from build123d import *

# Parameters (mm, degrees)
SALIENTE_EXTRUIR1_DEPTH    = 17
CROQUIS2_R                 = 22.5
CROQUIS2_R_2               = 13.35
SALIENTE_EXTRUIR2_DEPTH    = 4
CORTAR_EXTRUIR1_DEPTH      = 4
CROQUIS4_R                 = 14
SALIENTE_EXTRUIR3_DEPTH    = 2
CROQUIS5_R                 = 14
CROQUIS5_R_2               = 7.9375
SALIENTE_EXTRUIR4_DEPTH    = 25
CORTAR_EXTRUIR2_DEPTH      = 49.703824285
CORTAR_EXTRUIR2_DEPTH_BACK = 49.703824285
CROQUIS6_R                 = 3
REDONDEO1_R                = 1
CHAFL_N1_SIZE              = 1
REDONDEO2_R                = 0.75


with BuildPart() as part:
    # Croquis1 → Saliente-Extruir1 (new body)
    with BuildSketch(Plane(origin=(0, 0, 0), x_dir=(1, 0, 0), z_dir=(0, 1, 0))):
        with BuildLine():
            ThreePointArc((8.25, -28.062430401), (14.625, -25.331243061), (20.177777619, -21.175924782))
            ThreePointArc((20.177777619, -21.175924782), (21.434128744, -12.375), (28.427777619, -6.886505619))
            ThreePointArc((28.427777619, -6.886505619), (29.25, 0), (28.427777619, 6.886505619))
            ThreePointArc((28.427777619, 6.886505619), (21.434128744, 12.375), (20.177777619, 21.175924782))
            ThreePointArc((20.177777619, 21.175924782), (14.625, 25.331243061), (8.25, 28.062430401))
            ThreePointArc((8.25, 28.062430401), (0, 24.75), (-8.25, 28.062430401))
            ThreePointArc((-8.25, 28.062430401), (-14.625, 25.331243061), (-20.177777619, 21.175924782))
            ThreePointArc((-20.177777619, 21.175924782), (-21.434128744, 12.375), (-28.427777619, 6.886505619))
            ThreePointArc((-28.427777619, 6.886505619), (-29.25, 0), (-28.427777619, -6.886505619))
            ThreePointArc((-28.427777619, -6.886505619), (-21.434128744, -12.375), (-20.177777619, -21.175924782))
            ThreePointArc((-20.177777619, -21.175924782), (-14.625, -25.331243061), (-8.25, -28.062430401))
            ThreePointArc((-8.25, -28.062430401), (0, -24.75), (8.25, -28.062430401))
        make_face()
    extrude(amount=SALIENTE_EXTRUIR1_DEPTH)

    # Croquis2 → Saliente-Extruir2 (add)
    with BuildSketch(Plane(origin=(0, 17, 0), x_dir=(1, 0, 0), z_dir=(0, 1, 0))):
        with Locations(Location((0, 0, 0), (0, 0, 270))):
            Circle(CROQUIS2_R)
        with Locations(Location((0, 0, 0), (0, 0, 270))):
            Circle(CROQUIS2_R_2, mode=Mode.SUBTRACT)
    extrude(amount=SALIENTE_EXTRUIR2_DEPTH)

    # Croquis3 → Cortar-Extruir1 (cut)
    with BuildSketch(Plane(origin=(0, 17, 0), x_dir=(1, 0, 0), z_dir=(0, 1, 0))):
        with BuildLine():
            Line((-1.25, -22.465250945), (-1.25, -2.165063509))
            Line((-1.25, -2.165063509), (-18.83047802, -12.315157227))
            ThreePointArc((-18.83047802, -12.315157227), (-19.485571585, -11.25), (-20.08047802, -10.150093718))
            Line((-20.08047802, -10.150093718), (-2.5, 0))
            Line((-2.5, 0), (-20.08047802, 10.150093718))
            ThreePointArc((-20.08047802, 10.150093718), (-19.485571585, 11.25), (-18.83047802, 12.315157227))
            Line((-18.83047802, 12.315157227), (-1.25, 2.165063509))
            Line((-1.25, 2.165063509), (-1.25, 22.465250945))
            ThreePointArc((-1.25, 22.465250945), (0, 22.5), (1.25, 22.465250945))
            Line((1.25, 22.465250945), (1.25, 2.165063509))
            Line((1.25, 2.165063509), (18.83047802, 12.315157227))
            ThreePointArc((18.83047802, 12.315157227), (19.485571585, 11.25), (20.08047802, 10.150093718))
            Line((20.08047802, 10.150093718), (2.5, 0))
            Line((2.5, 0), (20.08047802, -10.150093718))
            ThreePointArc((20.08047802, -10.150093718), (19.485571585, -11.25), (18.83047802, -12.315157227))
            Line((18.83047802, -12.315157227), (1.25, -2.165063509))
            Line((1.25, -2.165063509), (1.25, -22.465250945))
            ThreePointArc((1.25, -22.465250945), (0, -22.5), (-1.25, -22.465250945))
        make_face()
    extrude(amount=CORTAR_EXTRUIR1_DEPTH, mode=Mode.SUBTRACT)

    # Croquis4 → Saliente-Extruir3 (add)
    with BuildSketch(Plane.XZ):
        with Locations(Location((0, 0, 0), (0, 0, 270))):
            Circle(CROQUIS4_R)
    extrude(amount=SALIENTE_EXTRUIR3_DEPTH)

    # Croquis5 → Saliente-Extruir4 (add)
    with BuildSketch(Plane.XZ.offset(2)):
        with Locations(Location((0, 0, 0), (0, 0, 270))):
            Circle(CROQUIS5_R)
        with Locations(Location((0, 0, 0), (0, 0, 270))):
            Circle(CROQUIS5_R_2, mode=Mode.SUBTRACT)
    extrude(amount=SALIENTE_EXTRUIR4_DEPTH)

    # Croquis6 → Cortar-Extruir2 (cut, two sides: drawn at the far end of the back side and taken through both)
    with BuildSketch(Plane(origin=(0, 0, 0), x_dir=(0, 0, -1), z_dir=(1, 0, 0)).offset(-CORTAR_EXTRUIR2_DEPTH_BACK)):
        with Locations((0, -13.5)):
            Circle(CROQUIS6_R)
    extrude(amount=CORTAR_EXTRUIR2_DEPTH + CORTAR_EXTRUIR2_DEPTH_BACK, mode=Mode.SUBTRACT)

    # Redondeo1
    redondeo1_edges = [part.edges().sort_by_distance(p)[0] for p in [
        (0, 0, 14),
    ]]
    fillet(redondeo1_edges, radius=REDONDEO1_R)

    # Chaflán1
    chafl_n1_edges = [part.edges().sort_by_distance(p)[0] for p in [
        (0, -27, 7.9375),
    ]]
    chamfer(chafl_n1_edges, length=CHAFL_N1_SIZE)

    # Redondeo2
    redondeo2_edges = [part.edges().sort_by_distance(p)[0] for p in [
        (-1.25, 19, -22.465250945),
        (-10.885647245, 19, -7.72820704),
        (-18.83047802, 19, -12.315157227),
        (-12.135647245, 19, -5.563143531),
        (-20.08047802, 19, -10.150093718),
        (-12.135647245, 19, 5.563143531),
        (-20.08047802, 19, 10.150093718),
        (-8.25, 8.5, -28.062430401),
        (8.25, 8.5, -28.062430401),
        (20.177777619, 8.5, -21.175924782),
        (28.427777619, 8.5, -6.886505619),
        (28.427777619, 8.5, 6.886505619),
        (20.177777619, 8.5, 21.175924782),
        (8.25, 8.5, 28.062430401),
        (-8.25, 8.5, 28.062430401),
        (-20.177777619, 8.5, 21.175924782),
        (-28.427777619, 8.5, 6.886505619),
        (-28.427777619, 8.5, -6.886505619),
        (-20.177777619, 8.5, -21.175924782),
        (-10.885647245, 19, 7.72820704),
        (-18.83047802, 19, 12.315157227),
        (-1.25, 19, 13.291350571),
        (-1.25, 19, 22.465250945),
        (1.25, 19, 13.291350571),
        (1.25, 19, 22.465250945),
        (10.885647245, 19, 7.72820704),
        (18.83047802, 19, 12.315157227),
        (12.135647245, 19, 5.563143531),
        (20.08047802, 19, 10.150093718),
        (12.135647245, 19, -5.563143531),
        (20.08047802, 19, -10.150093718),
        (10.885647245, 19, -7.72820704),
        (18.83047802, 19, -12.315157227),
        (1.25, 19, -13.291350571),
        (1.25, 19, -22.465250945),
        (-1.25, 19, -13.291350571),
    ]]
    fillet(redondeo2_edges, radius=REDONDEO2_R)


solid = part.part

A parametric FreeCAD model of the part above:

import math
import FreeCAD as App
import Part
import Sketcher

V = App.Vector
Q = App.Units.Quantity


def edges_at(feature, points):
    """Names of the edges that pass closest to the given points."""
    edges = feature.Shape.Edges
    near = lambda p: min(range(len(edges)), key=lambda i: edges[i].distToShape(Part.Vertex(*p))[0])
    return sorted({f"Edge{near(p) + 1}" for p in points})

doc = App.newDocument("Part")
body = doc.addObject("PartDesign::Body", "Body")

# Sketch on XZ plane
sketch1 = body.newObject("Sketcher::SketchObject", "Sketch")
sketch1.AttachmentSupport = (doc.getObject("XZ_Plane"), [""])
sketch1.MapMode = "FlatFace"
sketch1.addGeometry(Part.ArcOfCircle(Part.Circle(V(0, 0, 0), V(0, 0, 1), 29.25), math.radians(46.38267), math.radians(73.61733)), False)
sketch1.addGeometry(Part.ArcOfCircle(Part.Circle(V(31.765826, 18.340008, 0), V(0, 0, 1), 11.930016), math.radians(166.248416), math.radians(253.751584)), False)
sketch1.addGeometry(Part.ArcOfCircle(Part.Circle(V(0, 0, 0), V(0, 0, 1), 29.25), math.radians(-13.61733), math.radians(13.61733)), False)
sketch1.addGeometry(Part.ArcOfCircle(Part.Circle(V(31.765826, -18.340008, 0), V(0, 0, 1), 11.930016), math.radians(106.248416), math.radians(193.751584)), False)
sketch1.addGeometry(Part.ArcOfCircle(Part.Circle(V(0, 0, 0), V(0, 0, 1), 29.25), math.radians(-73.61733), math.radians(-46.38267)), False)
sketch1.addGeometry(Part.ArcOfCircle(Part.Circle(V(0, -36.680016, 0), V(0, 0, 1), 11.930016), math.radians(46.248416), math.radians(133.751584)), False)
sketch1.addGeometry(Part.ArcOfCircle(Part.Circle(V(0, 0, 0), V(0, 0, 1), 29.25), math.radians(-133.61733), math.radians(-106.38267)), False)
sketch1.addGeometry(Part.ArcOfCircle(Part.Circle(V(-31.765826, -18.340008, 0), V(0, 0, 1), 11.930016), math.radians(-13.751584), math.radians(73.751584)), False)
sketch1.addGeometry(Part.ArcOfCircle(Part.Circle(V(0, 0, 0), V(0, 0, 1), 29.25), math.radians(166.38267), math.radians(193.61733)), False)
sketch1.addGeometry(Part.ArcOfCircle(Part.Circle(V(-31.765826, 18.340008, 0), V(0, 0, 1), 11.930016), math.radians(-73.751584), math.radians(13.751584)), False)
sketch1.addGeometry(Part.ArcOfCircle(Part.Circle(V(0, 0, 0), V(0, 0, 1), 29.25), math.radians(106.38267), math.radians(133.61733)), False)
sketch1.addGeometry(Part.ArcOfCircle(Part.Circle(V(0, 36.680016, 0), V(0, 0, 1), 11.930016), math.radians(-133.751584), math.radians(-46.248416)), False)
sketch1.addConstraint(Sketcher.Constraint("Coincident", 0, 1, 1, 1))
sketch1.addConstraint(Sketcher.Constraint("Coincident", 1, 2, 2, 2))
sketch1.addConstraint(Sketcher.Constraint("Coincident", 2, 1, 3, 1))
sketch1.addConstraint(Sketcher.Constraint("Coincident", 3, 2, 4, 2))
sketch1.addConstraint(Sketcher.Constraint("Coincident", 4, 1, 5, 1))
sketch1.addConstraint(Sketcher.Constraint("Coincident", 5, 2, 6, 2))
sketch1.addConstraint(Sketcher.Constraint("Coincident", 6, 1, 7, 1))
sketch1.addConstraint(Sketcher.Constraint("Coincident", 7, 2, 8, 2))
sketch1.addConstraint(Sketcher.Constraint("Coincident", 8, 1, 9, 1))
sketch1.addConstraint(Sketcher.Constraint("Coincident", 9, 2, 10, 2))
sketch1.addConstraint(Sketcher.Constraint("Coincident", 10, 1, 11, 1))
sketch1.addConstraint(Sketcher.Constraint("Coincident", 11, 2, 0, 2))
sketch1.addConstraint(Sketcher.Constraint("Coincident", 0, 3, -1, 1))
sketch1.addConstraint(Sketcher.Constraint("Coincident", 2, 3, -1, 1))
sketch1.addConstraint(Sketcher.Constraint("Coincident", 4, 3, -1, 1))
sketch1.addConstraint(Sketcher.Constraint("Coincident", 6, 3, -1, 1))
sketch1.addConstraint(Sketcher.Constraint("Coincident", 8, 3, -1, 1))
sketch1.addConstraint(Sketcher.Constraint("Coincident", 10, 3, -1, 1))
sketch1.addConstraint(Sketcher.Constraint("Equal", 0, 2))
sketch1.addConstraint(Sketcher.Constraint("Equal", 1, 3))
sketch1.addConstraint(Sketcher.Constraint("Equal", 2, 4))
sketch1.addConstraint(Sketcher.Constraint("Equal", 3, 5))
sketch1.addConstraint(Sketcher.Constraint("Equal", 4, 6))
sketch1.addConstraint(Sketcher.Constraint("Equal", 5, 7))
sketch1.addConstraint(Sketcher.Constraint("Equal", 6, 8))
sketch1.addConstraint(Sketcher.Constraint("Equal", 7, 9))
sketch1.addConstraint(Sketcher.Constraint("Equal", 8, 10))
sketch1.addConstraint(Sketcher.Constraint("Equal", 9, 11))
sketch1.addConstraint(Sketcher.Constraint("Symmetric", 1, 3, 7, 3, -1, 1))
sketch1.addConstraint(Sketcher.Constraint("Symmetric", 3, 3, 9, 3, -1, 1))
sketch1.addConstraint(Sketcher.Constraint("Symmetric", 5, 3, 11, 3, -1, 1))
sketch1.addConstraint(Sketcher.Constraint("Symmetric", 3, 3, 7, 3, -2))
sketch1.addConstraint(Sketcher.Constraint("PointOnObject", 5, 3, -2))
sketch1.addConstraint(Sketcher.Constraint("Radius", 0, Q("29.25 mm")))
sketch1.addConstraint(Sketcher.Constraint("DistanceX", 5, 2, 4, 1, Q("16.5 mm")))
sketch1.addConstraint(Sketcher.Constraint("DistanceX", 0, 1, 1, 2, Q("8.25 mm")))
sketch1.addConstraint(Sketcher.Constraint("Radius", 1, Q("11.930016 mm")))
sketch1.addConstraint(Sketcher.Constraint("DistanceX", 0, 1, 1, 3, Q("11.588048 mm")))
pad1 = body.newObject("PartDesign::Pad", "Pad")
pad1.Profile = sketch1
pad1.Length = 17
pad1.Reversed = True

# Sketch on XZ plane
sketch2 = body.newObject("Sketcher::SketchObject", "Sketch001")
sketch2.AttachmentSupport = (doc.getObject("XZ_Plane"), [""])
sketch2.MapMode = "FlatFace"
sketch2.AttachmentOffset = App.Placement(V(0, 0, -17), App.Rotation())
sketch2.addGeometry(Part.Circle(V(0, 0, 0), V(0, 0, 1), 22.5), False)
sketch2.addGeometry(Part.Circle(V(0, 0, 0), V(0, 0, 1), 13.35), False)
sketch2.addConstraint(Sketcher.Constraint("Coincident", 0, 3, -1, 1))
sketch2.addConstraint(Sketcher.Constraint("Coincident", 1, 3, -1, 1))
sketch2.addConstraint(Sketcher.Constraint("Diameter", 0, Q("45 mm")))
sketch2.addConstraint(Sketcher.Constraint("Diameter", 1, Q("26.7 mm")))
pad2 = body.newObject("PartDesign::Pad", "Pad001")
pad2.Profile = sketch2
pad2.Length = 4
pad2.Reversed = True

# Sketch on XZ plane
sketch3 = body.newObject("Sketcher::SketchObject", "Sketch002")
sketch3.AttachmentSupport = (doc.getObject("XZ_Plane"), [""])
sketch3.MapMode = "FlatFace"
sketch3.AttachmentOffset = App.Placement(V(0, 0, -17), App.Rotation())
sketch3.addGeometry(Part.LineSegment(V(-1.25, 2.165064, 0), V(-1.25, 22.465251, 0)), False)
sketch3.addGeometry(Part.ArcOfCircle(Part.Circle(V(0, 0, 0), V(0, 0, 1), 22.5), math.radians(86.815262), math.radians(93.184738)), False)
sketch3.addGeometry(Part.LineSegment(V(1.25, 22.465251, 0), V(1.25, 2.165064, 0)), False)
sketch3.addGeometry(Part.LineSegment(V(1.25, 2.165064, 0), V(18.830478, 12.315157, 0)), False)
sketch3.addGeometry(Part.ArcOfCircle(Part.Circle(V(0, 0, 0), V(0, 0, 1), 22.5), math.radians(26.815261), math.radians(33.184739)), False)
sketch3.addGeometry(Part.LineSegment(V(20.080478, 10.150094, 0), V(2.5, 0, 0)), False)
sketch3.addGeometry(Part.LineSegment(V(2.5, 0, 0), V(20.080478, -10.150094, 0)), False)
sketch3.addGeometry(Part.ArcOfCircle(Part.Circle(V(0, 0, 0), V(0, 0, 1), 22.5), math.radians(-33.184739), math.radians(-26.815261)), False)
sketch3.addGeometry(Part.LineSegment(V(18.830478, -12.315157, 0), V(1.25, -2.165064, 0)), False)
sketch3.addGeometry(Part.LineSegment(V(1.25, -2.165064, 0), V(1.25, -22.465251, 0)), False)
sketch3.addGeometry(Part.ArcOfCircle(Part.Circle(V(0, 0, 0), V(0, 0, 1), 22.5), math.radians(-93.184738), math.radians(-86.815262)), False)
sketch3.addGeometry(Part.LineSegment(V(-1.25, -22.465251, 0), V(-1.25, -2.165064, 0)), False)
sketch3.addGeometry(Part.LineSegment(V(-1.25, -2.165064, 0), V(-18.830478, -12.315157, 0)), False)
sketch3.addGeometry(Part.ArcOfCircle(Part.Circle(V(0, 0, 0), V(0, 0, 1), 22.5), math.radians(-153.184739), math.radians(-146.815261)), False)
sketch3.addGeometry(Part.LineSegment(V(-20.080478, -10.150094, 0), V(-2.5, 0, 0)), False)
sketch3.addGeometry(Part.LineSegment(V(-2.5, 0, 0), V(-20.080478, 10.150094, 0)), False)
sketch3.addGeometry(Part.ArcOfCircle(Part.Circle(V(0, 0, 0), V(0, 0, 1), 22.5), math.radians(146.815261), math.radians(153.184739)), False)
sketch3.addGeometry(Part.LineSegment(V(-18.830478, 12.315157, 0), V(-1.25, 2.165064, 0)), False)
sketch3.addConstraint(Sketcher.Constraint("Coincident", 0, 2, 1, 2))
sketch3.addConstraint(Sketcher.Constraint("Coincident", 1, 1, 2, 1))
sketch3.addConstraint(Sketcher.Constraint("Coincident", 2, 2, 3, 1))
sketch3.addConstraint(Sketcher.Constraint("Coincident", 3, 2, 4, 2))
sketch3.addConstraint(Sketcher.Constraint("Coincident", 4, 1, 5, 1))
sketch3.addConstraint(Sketcher.Constraint("Coincident", 5, 2, 6, 1))
sketch3.addConstraint(Sketcher.Constraint("Coincident", 6, 2, 7, 2))
sketch3.addConstraint(Sketcher.Constraint("Coincident", 7, 1, 8, 1))
sketch3.addConstraint(Sketcher.Constraint("Coincident", 8, 2, 9, 1))
sketch3.addConstraint(Sketcher.Constraint("Coincident", 9, 2, 10, 2))
sketch3.addConstraint(Sketcher.Constraint("Coincident", 10, 1, 11, 1))
sketch3.addConstraint(Sketcher.Constraint("Coincident", 11, 2, 12, 1))
sketch3.addConstraint(Sketcher.Constraint("Coincident", 12, 2, 13, 2))
sketch3.addConstraint(Sketcher.Constraint("Coincident", 13, 1, 14, 1))
sketch3.addConstraint(Sketcher.Constraint("Coincident", 14, 2, 15, 1))
sketch3.addConstraint(Sketcher.Constraint("Coincident", 15, 2, 16, 2))
sketch3.addConstraint(Sketcher.Constraint("Coincident", 16, 1, 17, 1))
sketch3.addConstraint(Sketcher.Constraint("Coincident", 17, 2, 0, 1))
sketch3.addConstraint(Sketcher.Constraint("Vertical", 0))
sketch3.addConstraint(Sketcher.Constraint("Vertical", 2))
sketch3.addConstraint(Sketcher.Constraint("Vertical", 9))
sketch3.addConstraint(Sketcher.Constraint("Vertical", 11))
sketch3.addConstraint(Sketcher.Constraint("Coincident", 1, 3, -1, 1))
sketch3.addConstraint(Sketcher.Constraint("Coincident", 4, 3, -1, 1))
sketch3.addConstraint(Sketcher.Constraint("Coincident", 7, 3, -1, 1))
sketch3.addConstraint(Sketcher.Constraint("Coincident", 10, 3, -1, 1))
sketch3.addConstraint(Sketcher.Constraint("Coincident", 13, 3, -1, 1))
sketch3.addConstraint(Sketcher.Constraint("Coincident", 16, 3, -1, 1))
sketch3.addConstraint(Sketcher.Constraint("Equal", 1, 4))
sketch3.addConstraint(Sketcher.Constraint("Equal", 4, 7))
sketch3.addConstraint(Sketcher.Constraint("Equal", 7, 10))
sketch3.addConstraint(Sketcher.Constraint("Equal", 10, 13))
sketch3.addConstraint(Sketcher.Constraint("Equal", 13, 16))
sketch3.addConstraint(Sketcher.Constraint("Symmetric", 2, 2, 11, 2, -1, 1))
sketch3.addConstraint(Sketcher.Constraint("Symmetric", 5, 2, 14, 2, -1, 1))
sketch3.addConstraint(Sketcher.Constraint("Symmetric", 8, 2, 17, 2, -1, 1))
sketch3.addConstraint(Sketcher.Constraint("Symmetric", 8, 2, 11, 2, -2))
sketch3.addConstraint(Sketcher.Constraint("PointOnObject", 5, 2, -1))
sketch3.addConstraint(Sketcher.Constraint("Parallel", 3, 5))
sketch3.addConstraint(Sketcher.Constraint("Parallel", 6, 8))
sketch3.addConstraint(Sketcher.Constraint("Parallel", 5, 12))
sketch3.addConstraint(Sketcher.Constraint("Parallel", 12, 14))
sketch3.addConstraint(Sketcher.Constraint("Parallel", 8, 15))
sketch3.addConstraint(Sketcher.Constraint("Parallel", 15, 17))
sketch3.addConstraint(Sketcher.Constraint("Horizontal", 7, 1, 12, 2))
sketch3.addConstraint(Sketcher.Constraint("Equal", 3, 5))
sketch3.addConstraint(Sketcher.Constraint("Radius", 1, Q("22.5 mm")))
sketch3.addConstraint(Sketcher.Constraint("Angle", 3, Q("30 deg")))
sketch3.addConstraint(Sketcher.Constraint("DistanceX", -1, 1, 5, 2, Q("2.5 mm")))
sketch3.addConstraint(Sketcher.Constraint("DistanceX", 0, 2, 1, 1, Q("2.5 mm")))
pocket1 = body.newObject("PartDesign::Pocket", "Pocket")
pocket1.Profile = sketch3
pocket1.Length = 4

# Sketch on XZ plane
sketch4 = body.newObject("Sketcher::SketchObject", "Sketch003")
sketch4.AttachmentSupport = (doc.getObject("XZ_Plane"), [""])
sketch4.MapMode = "FlatFace"
sketch4.addGeometry(Part.Circle(V(0, 0, 0), V(0, 0, 1), 14), False)
sketch4.addConstraint(Sketcher.Constraint("Coincident", 0, 3, -1, 1))
sketch4.addConstraint(Sketcher.Constraint("Diameter", 0, Q("28 mm")))
pad3 = body.newObject("PartDesign::Pad", "Pad002")
pad3.Profile = sketch4
pad3.Length = 2

# Sketch on XZ plane
sketch5 = body.newObject("Sketcher::SketchObject", "Sketch004")
sketch5.AttachmentSupport = (doc.getObject("XZ_Plane"), [""])
sketch5.MapMode = "FlatFace"
sketch5.AttachmentOffset = App.Placement(V(0, 0, 2), App.Rotation())
sketch5.addGeometry(Part.Circle(V(0, 0, 0), V(0, 0, 1), 14), False)
sketch5.addGeometry(Part.Circle(V(0, 0, 0), V(0, 0, 1), 7.9375), False)
sketch5.addConstraint(Sketcher.Constraint("Coincident", 0, 3, -1, 1))
sketch5.addConstraint(Sketcher.Constraint("Coincident", 1, 3, -1, 1))
sketch5.addConstraint(Sketcher.Constraint("Diameter", 0, Q("28 mm")))
sketch5.addConstraint(Sketcher.Constraint("Diameter", 1, Q("15.875 mm")))
pad4 = body.newObject("PartDesign::Pad", "Pad003")
pad4.Profile = sketch5
pad4.Length = 25

# Sketch on YZ plane
sketch6 = body.newObject("Sketcher::SketchObject", "Sketch005")
sketch6.AttachmentSupport = (doc.getObject("YZ_Plane"), [""])
sketch6.MapMode = "FlatFace"
sketch6.addGeometry(Part.Circle(V(-13.5, 0, 0), V(0, 0, 1), 3), False)
sketch6.addConstraint(Sketcher.Constraint("PointOnObject", 0, 3, -1))
sketch6.addConstraint(Sketcher.Constraint("Diameter", 0, Q("6 mm")))
sketch6.addConstraint(Sketcher.Constraint("DistanceX", 0, 3, -1, 1, Q("13.5 mm")))
pocket2 = body.newObject("PartDesign::Pocket", "Pocket001")
pocket2.Profile = sketch6
pocket2.Type = "ThroughAll"
pocket2.Midplane = True
doc.recompute()

fillet = body.newObject("PartDesign::Fillet", "Fillet")
fillet.Base = (pocket2, edges_at(pocket2, [(0, 0, 14)]))
fillet.Radius = 1
doc.recompute()

chamfer = body.newObject("PartDesign::Chamfer", "Chamfer")
chamfer.Base = (fillet, edges_at(fillet, [(0, -27, 7.938)]))
chamfer.Size = 1
doc.recompute()

fillet2 = body.newObject("PartDesign::Fillet", "Fillet001")
fillet2.Base = (chamfer, edges_at(chamfer, [
    (-1.25, 19, -22.465),
    (-10.886, 19, -7.728),
    (-18.83, 19, -12.315),
    (-12.136, 19, -5.563),
    (-20.08, 19, -10.15),
    (-12.136, 19, 5.563),
    (-20.08, 19, 10.15),
    (-8.25, 8.5, -28.062),
    (8.25, 8.5, -28.062),
    (20.178, 8.5, -21.176),
    (28.428, 8.5, -6.887),
    (28.428, 8.5, 6.887),
    (20.178, 8.5, 21.176),
    (8.25, 8.5, 28.062),
    (-8.25, 8.5, 28.062),
    (-20.178, 8.5, 21.176),
    (-28.428, 8.5, 6.887),
    (-28.428, 8.5, -6.887),
    (-20.178, 8.5, -21.176),
    (-10.886, 19, 7.728),
    (-18.83, 19, 12.315),
    (-1.25, 19, 13.291),
    (-1.25, 19, 22.465),
    (1.25, 19, 13.291),
    (1.25, 19, 22.465),
    (10.886, 19, 7.728),
    (18.83, 19, 12.315),
    (12.136, 19, 5.563),
    (20.08, 19, 10.15),
    (12.136, 19, -5.563),
    (20.08, 19, -10.15),
    (10.886, 19, -7.728),
    (18.83, 19, -12.315),
    (1.25, 19, -13.291),
    (1.25, 19, -22.465),
    (-1.25, 19, -13.291),
]))
fillet2.Radius = 0.75

doc.recompute()
